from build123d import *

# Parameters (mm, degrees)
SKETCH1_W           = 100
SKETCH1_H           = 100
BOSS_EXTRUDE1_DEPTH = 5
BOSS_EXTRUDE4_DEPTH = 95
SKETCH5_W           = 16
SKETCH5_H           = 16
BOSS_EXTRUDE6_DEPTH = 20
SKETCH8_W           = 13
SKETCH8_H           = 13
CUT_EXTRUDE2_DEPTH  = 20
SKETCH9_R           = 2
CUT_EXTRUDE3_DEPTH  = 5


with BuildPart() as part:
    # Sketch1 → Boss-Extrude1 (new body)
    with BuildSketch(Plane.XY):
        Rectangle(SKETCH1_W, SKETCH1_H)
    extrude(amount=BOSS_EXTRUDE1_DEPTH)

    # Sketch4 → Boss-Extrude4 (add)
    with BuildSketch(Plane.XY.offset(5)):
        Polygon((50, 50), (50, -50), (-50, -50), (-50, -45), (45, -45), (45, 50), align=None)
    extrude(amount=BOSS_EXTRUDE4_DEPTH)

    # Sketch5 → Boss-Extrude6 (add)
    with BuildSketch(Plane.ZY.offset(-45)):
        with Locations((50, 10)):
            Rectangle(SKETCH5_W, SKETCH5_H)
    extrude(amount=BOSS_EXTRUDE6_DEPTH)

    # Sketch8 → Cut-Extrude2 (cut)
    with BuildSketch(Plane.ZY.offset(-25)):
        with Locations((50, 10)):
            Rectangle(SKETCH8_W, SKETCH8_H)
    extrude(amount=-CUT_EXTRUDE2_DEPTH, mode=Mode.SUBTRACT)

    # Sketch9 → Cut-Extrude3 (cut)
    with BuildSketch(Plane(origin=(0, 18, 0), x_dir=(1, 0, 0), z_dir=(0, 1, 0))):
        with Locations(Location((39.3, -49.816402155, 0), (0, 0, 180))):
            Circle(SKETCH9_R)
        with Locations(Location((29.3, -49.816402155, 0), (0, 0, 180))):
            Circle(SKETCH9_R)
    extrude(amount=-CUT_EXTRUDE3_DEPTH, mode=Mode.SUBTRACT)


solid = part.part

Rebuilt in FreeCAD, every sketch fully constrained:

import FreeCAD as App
import Part
import Sketcher

doc = App.newDocument("Part")
params = doc.addObject("Spreadsheet::Sheet", "Params")
for row, (alias, value) in enumerate([
    ("sketch1_width", "100 mm"),
    ("pad1_length", "5 mm"),
    ("sketch2_width", "5 mm"),
    ("sketch2_width2", "95 mm"),
    ("pad2_length", "95 mm"),
    ("sketch3_width", "16 mm"),
    ("pad3_length", "20 mm"),
    ("sketch4_width", "13 mm"),
    ("pocket1_length", "20 mm"),
    ("sketch5_diameter", "4 mm"),
    ("pocket2_length", "5 mm"),
], start=1):
    params.set(f"A{row}", alias)
    params.set(f"B{row}", "=" + value)
    params.setAlias(f"B{row}", alias)

body = doc.addObject("PartDesign::Body", "Body")

sketch1 = body.newObject("Sketcher::SketchObject", "Sketch")
sketch1.AttachmentSupport = (doc.getObject("XY_Plane"), [""])
sketch1.MapMode = "FlatFace"
sketch1.addGeometry([
    Part.LineSegment(App.Vector(-50, 50, 0), App.Vector(-50, -50, 0)),
    Part.LineSegment(App.Vector(-50, -50, 0), App.Vector(50, -50, 0)),
    Part.LineSegment(App.Vector(50, -50, 0), App.Vector(50, 50, 0)),
    Part.LineSegment(App.Vector(50, 50, 0), App.Vector(-50, 50, 0)),
], False)
sketch1.addConstraint([
    Sketcher.Constraint("Coincident", 0, 2, 1, 1),
    Sketcher.Constraint("Coincident", 1, 2, 2, 1),
    Sketcher.Constraint("Coincident", 2, 2, 3, 1),
    Sketcher.Constraint("Coincident", 3, 2, 0, 1),
    Sketcher.Constraint("Vertical", 0),
    Sketcher.Constraint("Horizontal", 1),
    Sketcher.Constraint("Vertical", 2),
    Sketcher.Constraint("Horizontal", 3),
    Sketcher.Constraint("Symmetric", 0, 2, 2, 2, -1, 1),
    Sketcher.Constraint("Equal", 3, 0),
    Sketcher.Constraint("DistanceX", 1, 1, 1, 2, 100.0),
])
sketch1.setExpression("Constraints[10]", "Params.sketch1_width")
pad1 = body.newObject("PartDesign::Pad", "Pad")
pad1.Profile = sketch1
pad1.setExpression("Length", "Params.pad1_length")

sketch2 = body.newObject("Sketcher::SketchObject", "Sketch001")
sketch2.AttachmentSupport = (doc.getObject("XY_Plane"), [""])
sketch2.MapMode = "FlatFace"
sketch2.AttachmentOffset = App.Placement(App.Vector(0, 0, 5), App.Rotation())
sketch2.addGeometry([
    Part.LineSegment(App.Vector(50, -50, 0), App.Vector(50, 50, 0)),
    Part.LineSegment(App.Vector(50, 50, 0), App.Vector(45, 50, 0)),
    Part.LineSegment(App.Vector(45, 50, 0), App.Vector(45, -45, 0)),
    Part.LineSegment(App.Vector(45, -45, 0), App.Vector(-50, -45, 0)),
    Part.LineSegment(App.Vector(-50, -45, 0), App.Vector(-50, -50, 0)),
    Part.LineSegment(App.Vector(-50, -50, 0), App.Vector(50, -50, 0)),
], False)
sketch2.addConstraint([
    Sketcher.Constraint("Coincident", 0, 2, 1, 1),
    Sketcher.Constraint("Coincident", 1, 2, 2, 1),
    Sketcher.Constraint("Coincident", 2, 2, 3, 1),
    Sketcher.Constraint("Coincident", 3, 2, 4, 1),
    Sketcher.Constraint("Coincident", 4, 2, 5, 1),
    Sketcher.Constraint("Coincident", 5, 2, 0, 1),
    Sketcher.Constraint("Vertical", 0),
    Sketcher.Constraint("Horizontal", 1),
    Sketcher.Constraint("Vertical", 2),
    Sketcher.Constraint("Horizontal", 3),
    Sketcher.Constraint("Vertical", 4),
    Sketcher.Constraint("Horizontal", 5),
    Sketcher.Constraint("Symmetric", 0, 2, 4, 2, -1, 1),
    Sketcher.Constraint("Equal", 5, 0),
    Sketcher.Constraint("Equal", 3, 2),
    Sketcher.Constraint("DistanceX", 1, 2, 1, 1, 5.0),
    Sketcher.Constraint("DistanceX", 3, 2, 3, 1, 95.0),
])
sketch2.setExpression("Constraints[15]", "Params.sketch2_width")
sketch2.setExpression("Constraints[16]", "Params.sketch2_width2")
pad2 = body.newObject("PartDesign::Pad", "Pad001")
pad2.Profile = sketch2
pad2.setExpression("Length", "Params.pad2_length")

sketch3 = body.newObject("Sketcher::SketchObject", "Sketch002")
sketch3.AttachmentSupport = (doc.getObject("YZ_Plane"), [""])
sketch3.MapMode = "FlatFace"
sketch3.AttachmentOffset = App.Placement(App.Vector(0, 0, 45), App.Rotation())
sketch3.addGeometry([
    Part.LineSegment(App.Vector(18, 42, 0), App.Vector(2, 42, 0)),
    Part.LineSegment(App.Vector(2, 42, 0), App.Vector(2, 58, 0)),
    Part.LineSegment(App.Vector(2, 58, 0), App.Vector(18, 58, 0)),
    Part.LineSegment(App.Vector(18, 58, 0), App.Vector(18, 42, 0)),
], False)
sketch3.addConstraint([
    Sketcher.Constraint("Coincident", 0, 2, 1, 1),
    Sketcher.Constraint("Coincident", 1, 2, 2, 1),
    Sketcher.Constraint("Coincident", 2, 2, 3, 1),
    Sketcher.Constraint("Coincident", 3, 2, 0, 1),
    Sketcher.Constraint("Horizontal", 0),
    Sketcher.Constraint("Vertical", 1),
    Sketcher.Constraint("Horizontal", 2),
    Sketcher.Constraint("Vertical", 3),
    Sketcher.Constraint("Equal", 2, 1),
    Sketcher.Constraint("DistanceX", 0, 2, 0, 1, 16.0),
    Sketcher.Constraint("DistanceX", -1, 1, 0, 2, 2.0),
    Sketcher.Constraint("DistanceY", -1, 1, 0, 2, 42.0),
])
sketch3.setExpression("Constraints[9]", "Params.sketch3_width")
pad3 = body.newObject("PartDesign::Pad", "Pad002")
pad3.Profile = sketch3
pad3.setExpression("Length", "Params.pad3_length")
pad3.Reversed = True

sketch4 = body.newObject("Sketcher::SketchObject", "Sketch003")
sketch4.AttachmentSupport = (doc.getObject("YZ_Plane"), [""])
sketch4.MapMode = "FlatFace"
sketch4.AttachmentOffset = App.Placement(App.Vector(0, 0, 25), App.Rotation())
sketch4.addGeometry([
    Part.LineSegment(App.Vector(16, 44, 0), App.Vector(4, 44, 0)),
    Part.LineSegment(App.Vector(4, 44, 0), App.Vector(4, 56, 0)),
    Part.LineSegment(App.Vector(4, 56, 0), App.Vector(16, 56, 0)),
    Part.LineSegment(App.Vector(16, 56, 0), App.Vector(16, 44, 0)),
], False)
sketch4.addConstraint([
    Sketcher.Constraint("Coincident", 0, 2, 1, 1),
    Sketcher.Constraint("Coincident", 1, 2, 2, 1),
    Sketcher.Constraint("Coincident", 2, 2, 3, 1),
    Sketcher.Constraint("Coincident", 3, 2, 0, 1),
    Sketcher.Constraint("Horizontal", 0),
    Sketcher.Constraint("Vertical", 1),
    Sketcher.Constraint("Horizontal", 2),
    Sketcher.Constraint("Vertical", 3),
    Sketcher.Constraint("Equal", 2, 1),
    Sketcher.Constraint("DistanceX", 0, 2, 0, 1, 13.0),
    Sketcher.Constraint("DistanceX", -1, 1, 0, 2, 3.5),
    Sketcher.Constraint("DistanceY", -1, 1, 0, 2, 43.5),
])
sketch4.setExpression("Constraints[9]", "Params.sketch4_width")
pocket1 = body.newObject("PartDesign::Pocket", "Pocket")
pocket1.Profile = sketch4
pocket1.setExpression("Length", "Params.pocket1_length")
pocket1.Reversed = True

sketch5 = body.newObject("Sketcher::SketchObject", "Sketch004")
sketch5.AttachmentSupport = (doc.getObject("XZ_Plane"), [""])
sketch5.MapMode = "FlatFace"
sketch5.AttachmentOffset = App.Placement(App.Vector(0, 0, -18), App.Rotation())
sketch5.addGeometry([
    Part.Circle(App.Vector(39.3, 49.8, 0), App.Vector(0, 0, 1), 2),
    Part.Circle(App.Vector(29.3, 49.8, 0), App.Vector(0, 0, 1), 2),
], False)
sketch5.addConstraint([
    Sketcher.Constraint("Equal", 0, 1),
    Sketcher.Constraint("Horizontal", 0, 3, 1, 3),
    Sketcher.Constraint("Diameter", 0, 4.0),
    Sketcher.Constraint("DistanceX", 1, 3, 0, 3, 10.0),
    Sketcher.Constraint("DistanceX", -1, 1, 0, 3, 39.3),
    Sketcher.Constraint("DistanceY", -1, 1, 0, 3, 49.816402),
])
sketch5.setExpression("Constraints[2]", "Params.sketch5_diameter")
pocket2 = body.newObject("PartDesign::Pocket", "Pocket001")
pocket2.Profile = sketch5
pocket2.setExpression("Length", "Params.pocket2_length")
pocket2.Reversed = True

doc.recompute()
